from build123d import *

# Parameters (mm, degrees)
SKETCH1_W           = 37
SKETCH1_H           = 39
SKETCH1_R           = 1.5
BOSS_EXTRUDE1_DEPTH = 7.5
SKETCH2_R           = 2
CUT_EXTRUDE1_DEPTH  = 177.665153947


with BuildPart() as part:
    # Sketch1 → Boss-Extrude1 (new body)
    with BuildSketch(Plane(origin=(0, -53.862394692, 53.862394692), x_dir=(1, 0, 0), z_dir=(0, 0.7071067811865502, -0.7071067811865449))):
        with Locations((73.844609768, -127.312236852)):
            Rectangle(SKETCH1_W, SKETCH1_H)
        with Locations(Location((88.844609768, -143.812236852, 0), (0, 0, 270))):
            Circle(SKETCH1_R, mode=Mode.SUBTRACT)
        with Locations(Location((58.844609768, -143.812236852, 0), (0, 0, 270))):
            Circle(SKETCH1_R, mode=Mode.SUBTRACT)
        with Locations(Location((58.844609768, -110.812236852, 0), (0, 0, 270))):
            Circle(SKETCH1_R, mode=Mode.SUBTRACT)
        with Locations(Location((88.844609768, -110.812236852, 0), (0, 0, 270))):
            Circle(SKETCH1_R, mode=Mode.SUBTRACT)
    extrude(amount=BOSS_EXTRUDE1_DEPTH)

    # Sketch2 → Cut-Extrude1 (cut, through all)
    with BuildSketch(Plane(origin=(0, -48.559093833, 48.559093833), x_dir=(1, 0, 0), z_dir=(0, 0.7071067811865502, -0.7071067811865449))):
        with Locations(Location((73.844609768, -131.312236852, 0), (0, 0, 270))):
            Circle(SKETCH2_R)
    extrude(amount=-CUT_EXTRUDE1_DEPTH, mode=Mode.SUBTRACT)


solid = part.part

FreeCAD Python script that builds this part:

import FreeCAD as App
import Part
import Sketcher
from FreeCAD import Vector
Q = App.Units.Quantity

doc = App.newDocument("Part")
body = doc.addObject("PartDesign::Body", "Body")

# Sketch on an angled plane
sketch1 = body.newObject("Sketcher::SketchObject", "Sketch")
sketch1.Placement = App.Placement(Vector(0, -53.862395, 53.862395), App.Rotation(Vector(1, 0, 0), Vector(0, -0.707106781, -0.707106781), Vector(0, 0.707106781, -0.707106781), "ZXY"))
sketch1.addGeometry([
    Part.LineSegment(Vector(55.3, -107.8, 0), Vector(55.3, -146.8, 0)),  # 0
    Part.LineSegment(Vector(55.3, -146.8, 0), Vector(92.3, -146.8, 0)),  # 1
    Part.LineSegment(Vector(92.3, -146.8, 0), Vector(92.3, -107.8, 0)),  # 2
    Part.LineSegment(Vector(92.3, -107.8, 0), Vector(55.3, -107.8, 0)),  # 3
    Part.Circle(Vector(58.8, -143.8, 0), Vector(0, 0, 1), 1.5),  # 4
    Part.Circle(Vector(88.8, -143.8, 0), Vector(0, 0, 1), 1.5),  # 5
    Part.Circle(Vector(58.8, -110.8, 0), Vector(0, 0, 1), 1.5),  # 6
    Part.Circle(Vector(88.8, -110.8, 0), Vector(0, 0, 1), 1.5),  # 7
], False)
sketch1.addConstraint([
    Sketcher.Constraint("Coincident", 0, 2, 1, 1),
    Sketcher.Constraint("Coincident", 1, 2, 2, 1),
    Sketcher.Constraint("Coincident", 2, 2, 3, 1),
    Sketcher.Constraint("Coincident", 3, 2, 0, 1),
    Sketcher.Constraint("Vertical", 0),
    Sketcher.Constraint("Horizontal", 1),
    Sketcher.Constraint("Vertical", 2),
    Sketcher.Constraint("Horizontal", 3),
    Sketcher.Constraint("Equal", 4, 5),
    Sketcher.Constraint("Equal", 5, 6),
    Sketcher.Constraint("Equal", 6, 7),
    Sketcher.Constraint("Horizontal", 4, 3, 5, 3),
    Sketcher.Constraint("Horizontal", 6, 3, 7, 3),
    Sketcher.Constraint("Vertical", 4, 3, 6, 3),
    Sketcher.Constraint("Vertical", 5, 3, 7, 3),
    Sketcher.Constraint("Diameter", 4, Q("3 mm")),
    Sketcher.Constraint("DistanceX", 1, 1, 1, 2, Q("37 mm")),
    Sketcher.Constraint("DistanceY", 0, 2, 0, 1, Q("39 mm")),
    Sketcher.Constraint("DistanceX", 4, 3, 5, 3, Q("30 mm")),
    Sketcher.Constraint("DistanceY", 4, 3, 6, 3, Q("33 mm")),
    Sketcher.Constraint("DistanceY", 0, 2, 4, 3, Q("3 mm")),
    Sketcher.Constraint("DistanceX", 0, 2, 4, 3, Q("3.5 mm")),
    Sketcher.Constraint("DistanceX", -1, 1, 4, 3, Q("58.84461 mm")),
    Sketcher.Constraint("DistanceY", 4, 3, -1, 1, Q("143.812237 mm")),
])
pad1 = body.newObject("PartDesign::Pad", "Pad")
pad1.Profile = sketch1
pad1.Length = 7.5

# Sketch on an angled plane
sketch2 = body.newObject("Sketcher::SketchObject", "Sketch001")
sketch2.Placement = App.Placement(Vector(0, -48.559094, 48.559094), App.Rotation(Vector(1, 0, 0), Vector(0, -0.707106781, -0.707106781), Vector(0, 0.707106781, -0.707106781), "ZXY"))
sketch2.addGeometry(Part.Circle(Vector(73.8, -131.3, 0), Vector(0, 0, 1), 2), False)
sketch2.addConstraint([
    Sketcher.Constraint("Diameter", 0, Q("4 mm")),
    Sketcher.Constraint("DistanceX", -1, 1, 0, 3, Q("73.84461 mm")),
    Sketcher.Constraint("DistanceY", 0, 3, -1, 1, Q("131.312237 mm")),
])
pocket1 = body.newObject("PartDesign::Pocket", "Pocket")
pocket1.Profile = sketch2
pocket1.Type = "ThroughAll"

doc.recompute()
